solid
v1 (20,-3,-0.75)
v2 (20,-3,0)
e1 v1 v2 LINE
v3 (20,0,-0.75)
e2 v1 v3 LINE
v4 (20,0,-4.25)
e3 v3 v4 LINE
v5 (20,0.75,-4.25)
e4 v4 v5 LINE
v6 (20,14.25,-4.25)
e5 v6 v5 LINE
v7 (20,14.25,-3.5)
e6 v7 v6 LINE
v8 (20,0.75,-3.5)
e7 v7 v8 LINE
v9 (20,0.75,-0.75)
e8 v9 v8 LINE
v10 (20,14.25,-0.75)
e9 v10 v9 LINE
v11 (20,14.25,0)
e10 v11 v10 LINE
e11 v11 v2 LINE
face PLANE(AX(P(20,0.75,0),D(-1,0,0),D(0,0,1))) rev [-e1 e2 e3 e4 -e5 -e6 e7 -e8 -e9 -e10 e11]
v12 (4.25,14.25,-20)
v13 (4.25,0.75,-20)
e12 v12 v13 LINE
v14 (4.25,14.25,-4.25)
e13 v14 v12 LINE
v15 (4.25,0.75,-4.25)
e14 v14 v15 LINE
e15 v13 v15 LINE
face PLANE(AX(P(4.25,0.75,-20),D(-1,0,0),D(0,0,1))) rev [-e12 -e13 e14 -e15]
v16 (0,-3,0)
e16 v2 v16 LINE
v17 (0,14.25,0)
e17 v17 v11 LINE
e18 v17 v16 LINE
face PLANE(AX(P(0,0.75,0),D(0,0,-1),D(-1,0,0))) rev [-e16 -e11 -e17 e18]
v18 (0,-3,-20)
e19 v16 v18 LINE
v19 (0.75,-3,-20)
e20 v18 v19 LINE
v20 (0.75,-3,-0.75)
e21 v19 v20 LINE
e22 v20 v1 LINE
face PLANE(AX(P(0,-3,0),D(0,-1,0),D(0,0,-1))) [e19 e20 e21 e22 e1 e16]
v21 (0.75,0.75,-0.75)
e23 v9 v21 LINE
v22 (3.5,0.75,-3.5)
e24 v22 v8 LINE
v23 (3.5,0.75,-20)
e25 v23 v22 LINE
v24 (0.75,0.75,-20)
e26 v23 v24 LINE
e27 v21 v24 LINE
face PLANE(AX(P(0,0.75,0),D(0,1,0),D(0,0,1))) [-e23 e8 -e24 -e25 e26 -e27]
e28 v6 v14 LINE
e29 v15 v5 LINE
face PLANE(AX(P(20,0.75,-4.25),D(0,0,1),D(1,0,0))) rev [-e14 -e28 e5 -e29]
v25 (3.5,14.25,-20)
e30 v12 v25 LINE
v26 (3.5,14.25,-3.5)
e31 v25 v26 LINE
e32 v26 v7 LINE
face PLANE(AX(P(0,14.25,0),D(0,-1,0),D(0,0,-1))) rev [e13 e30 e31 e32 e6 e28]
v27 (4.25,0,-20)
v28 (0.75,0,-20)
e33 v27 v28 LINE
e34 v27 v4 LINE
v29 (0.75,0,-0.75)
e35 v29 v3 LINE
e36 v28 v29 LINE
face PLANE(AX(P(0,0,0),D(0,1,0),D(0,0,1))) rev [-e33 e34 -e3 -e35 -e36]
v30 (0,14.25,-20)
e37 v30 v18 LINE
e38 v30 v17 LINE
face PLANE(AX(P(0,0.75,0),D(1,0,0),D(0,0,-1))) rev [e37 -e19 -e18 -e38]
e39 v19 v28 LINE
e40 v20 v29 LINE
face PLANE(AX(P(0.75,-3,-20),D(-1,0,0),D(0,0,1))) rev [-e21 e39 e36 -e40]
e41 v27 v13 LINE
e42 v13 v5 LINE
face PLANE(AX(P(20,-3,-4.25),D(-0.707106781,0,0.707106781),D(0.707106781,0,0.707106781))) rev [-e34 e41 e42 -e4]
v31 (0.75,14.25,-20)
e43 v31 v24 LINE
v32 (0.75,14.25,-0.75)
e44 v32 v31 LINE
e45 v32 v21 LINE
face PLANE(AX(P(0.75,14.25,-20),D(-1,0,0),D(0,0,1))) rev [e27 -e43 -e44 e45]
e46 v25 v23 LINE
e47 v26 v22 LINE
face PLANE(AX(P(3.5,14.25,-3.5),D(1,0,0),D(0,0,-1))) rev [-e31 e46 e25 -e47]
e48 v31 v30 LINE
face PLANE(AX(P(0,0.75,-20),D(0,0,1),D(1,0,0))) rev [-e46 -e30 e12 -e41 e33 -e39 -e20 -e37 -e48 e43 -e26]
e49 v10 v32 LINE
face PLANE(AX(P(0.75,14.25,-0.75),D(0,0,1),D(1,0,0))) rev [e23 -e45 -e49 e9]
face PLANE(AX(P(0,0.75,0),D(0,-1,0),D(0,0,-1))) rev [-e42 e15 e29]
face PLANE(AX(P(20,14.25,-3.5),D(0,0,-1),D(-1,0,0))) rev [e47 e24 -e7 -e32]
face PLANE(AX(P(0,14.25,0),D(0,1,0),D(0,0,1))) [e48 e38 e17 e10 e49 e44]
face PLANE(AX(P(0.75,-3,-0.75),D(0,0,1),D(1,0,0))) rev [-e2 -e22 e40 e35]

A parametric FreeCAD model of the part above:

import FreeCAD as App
import Part
import Sketcher

V = App.Vector
Q = App.Units.Quantity

doc = App.newDocument("Part")
body = doc.addObject("PartDesign::Body", "Body")

# Sketch on XZ plane
sketch1 = doc.addObject("Sketcher::SketchObject", "Sketch")
body.addObject(sketch1)
sketch1.AttachmentSupport = (doc.XZ_Plane, [""])
sketch1.MapMode = "FlatFace"
sketch1.addGeometry(Part.LineSegment(V(0, -20, 0), V(0, 0, 0)), False)
sketch1.addGeometry(Part.LineSegment(V(0, 0, 0), V(20, 0, 0)), False)
sketch1.addGeometry(Part.LineSegment(V(20, 0, 0), V(20, -4.2, 0)), False)
sketch1.addGeometry(Part.LineSegment(V(20, -4.2, 0), V(4.2, -4.2, 0)), False)
sketch1.addGeometry(Part.LineSegment(V(4.2, -4.2, 0), V(4.2, -20, 0)), False)
sketch1.addGeometry(Part.LineSegment(V(4.2, -20, 0), V(0, -20, 0)), False)
sketch1.addConstraint(Sketcher.Constraint("Coincident", 0, 2, 1, 1))
sketch1.addConstraint(Sketcher.Constraint("Coincident", 1, 2, 2, 1))
sketch1.addConstraint(Sketcher.Constraint("Coincident", 2, 2, 3, 1))
sketch1.addConstraint(Sketcher.Constraint("Coincident", 3, 2, 4, 1))
sketch1.addConstraint(Sketcher.Constraint("Coincident", 4, 2, 5, 1))
sketch1.addConstraint(Sketcher.Constraint("Coincident", 5, 2, 0, 1))
sketch1.addConstraint(Sketcher.Constraint("Vertical", 0))
sketch1.addConstraint(Sketcher.Constraint("Horizontal", 1))
sketch1.addConstraint(Sketcher.Constraint("Vertical", 2))
sketch1.addConstraint(Sketcher.Constraint("Horizontal", 3))
sketch1.addConstraint(Sketcher.Constraint("Vertical", 4))
sketch1.addConstraint(Sketcher.Constraint("Horizontal", 5))
sketch1.addConstraint(Sketcher.Constraint("Coincident", 0, 2, -1, 1))
sketch1.addConstraint(Sketcher.Constraint("Equal", 1, 0))
sketch1.addConstraint(Sketcher.Constraint("Equal", 5, 2))
sketch1.addConstraint(Sketcher.Constraint("DistanceX", 1, 1, 1, 2, Q("20 mm")))
sketch1.addConstraint(Sketcher.Constraint("DistanceX", 3, 2, 3, 1, Q("15.75 mm")))
pad1 = doc.addObject("PartDesign::Pad", "Pad")
body.addObject(pad1)
pad1.Profile = sketch1
pad1.Length = 0.75
pad1.Reversed = True

# Sketch on XZ plane
sketch2 = doc.addObject("Sketcher::SketchObject", "Sketch001")
body.addObject(sketch2)
sketch2.AttachmentSupport = (doc.XZ_Plane, [""])
sketch2.MapMode = "FlatFace"
sketch2.AttachmentOffset = App.Placement(V(0, 0, -0.75), App.Rotation())
sketch2.addGeometry(Part.LineSegment(V(20, -3.5, 0), V(20, -4.2, 0)), False)
sketch2.addGeometry(Part.LineSegment(V(20, -4.2, 0), V(4.2, -4.2, 0)), False)
sketch2.addGeometry(Part.LineSegment(V(4.2, -4.2, 0), V(4.2, -20, 0)), False)
sketch2.addGeometry(Part.LineSegment(V(4.2, -20, 0), V(3.5, -20, 0)), False)
sketch2.addGeometry(Part.LineSegment(V(3.5, -20, 0), V(3.5, -3.5, 0)), False)
sketch2.addGeometry(Part.LineSegment(V(3.5, -3.5, 0), V(20, -3.5, 0)), False)
sketch2.addGeometry(Part.LineSegment(V(0.8, -20, 0), V(0, -20, 0)), False)
sketch2.addGeometry(Part.LineSegment(V(0, -20, 0), V(0, 0, 0)), False)
sketch2.addGeometry(Part.LineSegment(V(0, 0, 0), V(20, 0, 0)), False)
sketch2.addGeometry(Part.LineSegment(V(20, 0, 0), V(20, -0.8, 0)), False)
sketch2.addGeometry(Part.LineSegment(V(20, -0.8, 0), V(0.8, -0.8, 0)), False)
sketch2.addGeometry(Part.LineSegment(V(0.8, -0.8, 0), V(0.8, -20, 0)), False)
sketch2.addConstraint(Sketcher.Constraint("Coincident", 0, 2, 1, 1))
sketch2.addConstraint(Sketcher.Constraint("Coincident", 1, 2, 2, 1))
sketch2.addConstraint(Sketcher.Constraint("Coincident", 2, 2, 3, 1))
sketch2.addConstraint(Sketcher.Constraint("Coincident", 3, 2, 4, 1))
sketch2.addConstraint(Sketcher.Constraint("Coincident", 4, 2, 5, 1))
sketch2.addConstraint(Sketcher.Constraint("Coincident", 5, 2, 0, 1))
sketch2.addConstraint(Sketcher.Constraint("Coincident", 6, 2, 7, 1))
sketch2.addConstraint(Sketcher.Constraint("Coincident", 7, 2, 8, 1))
sketch2.addConstraint(Sketcher.Constraint("Coincident", 8, 2, 9, 1))
sketch2.addConstraint(Sketcher.Constraint("Coincident", 9, 2, 10, 1))
sketch2.addConstraint(Sketcher.Constraint("Coincident", 10, 2, 11, 1))
sketch2.addConstraint(Sketcher.Constraint("Coincident", 11, 2, 6, 1))
sketch2.addConstraint(Sketcher.Constraint("Vertical", 0))
sketch2.addConstraint(Sketcher.Constraint("Horizontal", 1))
sketch2.addConstraint(Sketcher.Constraint("Vertical", 2))
sketch2.addConstraint(Sketcher.Constraint("Horizontal", 3))
sketch2.addConstraint(Sketcher.Constraint("Vertical", 4))
sketch2.addConstraint(Sketcher.Constraint("Horizontal", 5))
sketch2.addConstraint(Sketcher.Constraint("Horizontal", 6))
sketch2.addConstraint(Sketcher.Constraint("Vertical", 7))
sketch2.addConstraint(Sketcher.Constraint("Horizontal", 8))
sketch2.addConstraint(Sketcher.Constraint("Vertical", 9))
sketch2.addConstraint(Sketcher.Constraint("Horizontal", 10))
sketch2.addConstraint(Sketcher.Constraint("Vertical", 11))
sketch2.addConstraint(Sketcher.Constraint("Coincident", 7, 2, -1, 1))
sketch2.addConstraint(Sketcher.Constraint("Horizontal", 3, 2, 6, 2))
sketch2.addConstraint(Sketcher.Constraint("Vertical", 5, 2, 8, 2))
sketch2.addConstraint(Sketcher.Constraint("Equal", 3, 6))
sketch2.addConstraint(Sketcher.Constraint("Equal", 6, 0))
sketch2.addConstraint(Sketcher.Constraint("Equal", 1, 2))
sketch2.addConstraint(Sketcher.Constraint("Equal", 8, 7))
sketch2.addConstraint(Sketcher.Constraint("Equal", 0, 9))
sketch2.addConstraint(Sketcher.Constraint("DistanceX", 8, 1, 8, 2, Q("20 mm")))
sketch2.addConstraint(Sketcher.Constraint("DistanceX", 5, 1, 5, 2, Q("16.5 mm")))
sketch2.addConstraint(Sketcher.Constraint("DistanceX", 1, 2, 1, 1, Q("15.75 mm")))
pad2 = doc.addObject("PartDesign::Pad", "Pad001")
body.addObject(pad2)
pad2.Profile = sketch2
pad2.Length = 13.5
pad2.Reversed = True

# Sketch on XZ plane
sketch3 = doc.addObject("Sketcher::SketchObject", "Sketch002")
body.addObject(sketch3)
sketch3.AttachmentSupport = (doc.XZ_Plane, [""])
sketch3.MapMode = "FlatFace"
sketch3.addGeometry(Part.LineSegment(V(0, 0, 0), V(0, -20, 0)), False)
sketch3.addGeometry(Part.LineSegment(V(0, -20, 0), V(20, -20, 0)), False)
sketch3.addGeometry(Part.LineSegment(V(20, -20, 0), V(20, 0, 0)), False)
sketch3.addGeometry(Part.LineSegment(V(20, 0, 0), V(0, 0, 0)), False)
sketch3.addConstraint(Sketcher.Constraint("Coincident", 0, 2, 1, 1))
sketch3.addConstraint(Sketcher.Constraint("Coincident", 1, 2, 2, 1))
sketch3.addConstraint(Sketcher.Constraint("Coincident", 2, 2, 3, 1))
sketch3.addConstraint(Sketcher.Constraint("Coincident", 3, 2, 0, 1))
sketch3.addConstraint(Sketcher.Constraint("Vertical", 0))
sketch3.addConstraint(Sketcher.Constraint("Horizontal", 1))
sketch3.addConstraint(Sketcher.Constraint("Vertical", 2))
sketch3.addConstraint(Sketcher.Constraint("Horizontal", 3))
sketch3.addConstraint(Sketcher.Constraint("Coincident", 3, 2, -1, 1))
sketch3.addConstraint(Sketcher.Constraint("Equal", 3, 0))
sketch3.addConstraint(Sketcher.Constraint("DistanceX", 1, 1, 1, 2, Q("20 mm")))
pad3 = doc.addObject("PartDesign::Pad", "Pad002")
body.addObject(pad3)
pad3.Profile = sketch3
pad3.Length = 0.75
pad3.Reversed = True

# Sketch on XZ plane
sketch4 = doc.addObject("Sketcher::SketchObject", "Sketch003")
body.addObject(sketch4)
sketch4.AttachmentSupport = (doc.XZ_Plane, [""])
sketch4.MapMode = "FlatFace"
sketch4.addGeometry(Part.LineSegment(V(0, 0, 0), V(0, -20, 0)), False)
sketch4.addGeometry(Part.LineSegment(V(0, -20, 0), V(0.8, -20, 0)), False)
sketch4.addGeometry(Part.LineSegment(V(0.8, -20, 0), V(0.8, -0.8, 0)), False)
sketch4.addGeometry(Part.LineSegment(V(0.8, -0.8, 0), V(20, -0.8, 0)), False)
sketch4.addGeometry(Part.LineSegment(V(20, -0.8, 0), V(20, 0, 0)), False)
sketch4.addGeometry(Part.LineSegment(V(20, 0, 0), V(0, 0, 0)), False)
sketch4.addConstraint(Sketcher.Constraint("Coincident", 0, 2, 1, 1))
sketch4.addConstraint(Sketcher.Constraint("Coincident", 1, 2, 2, 1))
sketch4.addConstraint(Sketcher.Constraint("Coincident", 2, 2, 3, 1))
sketch4.addConstraint(Sketcher.Constraint("Coincident", 3, 2, 4, 1))
sketch4.addConstraint(Sketcher.Constraint("Coincident", 4, 2, 5, 1))
sketch4.addConstraint(Sketcher.Constraint("Coincident", 5, 2, 0, 1))
sketch4.addConstraint(Sketcher.Constraint("Vertical", 0))
sketch4.addConstraint(Sketcher.Constraint("Horizontal", 1))
sketch4.addConstraint(Sketcher.Constraint("Vertical", 2))
sketch4.addConstraint(Sketcher.Constraint("Horizontal", 3))
sketch4.addConstraint(Sketcher.Constraint("Vertical", 4))
sketch4.addConstraint(Sketcher.Constraint("Horizontal", 5))
sketch4.addConstraint(Sketcher.Constraint("Coincident", 5, 2, -1, 1))
sketch4.addConstraint(Sketcher.Constraint("Equal", 5, 0))
sketch4.addConstraint(Sketcher.Constraint("Equal", 3, 2))
sketch4.addConstraint(Sketcher.Constraint("DistanceX", 5, 2, 5, 1, Q("20 mm")))
sketch4.addConstraint(Sketcher.Constraint("DistanceX", 1, 1, 1, 2, Q("0.75 mm")))
pad4 = doc.addObject("PartDesign::Pad", "Pad003")
body.addObject(pad4)
pad4.Profile = sketch4
pad4.Length = 3

# Sketch on XZ plane
sketch5 = doc.addObject("Sketcher::SketchObject", "Sketch004")
body.addObject(sketch5)
sketch5.AttachmentSupport = (doc.XZ_Plane, [""])
sketch5.MapMode = "FlatFace"
sketch5.AttachmentOffset = App.Placement(V(0, 0, -0.75), App.Rotation())
sketch5.addGeometry(Part.LineSegment(V(20, -4, 0), V(20, -20, 0)), False)
sketch5.addGeometry(Part.LineSegment(V(20, -20, 0), V(4, -20, 0)), False)
sketch5.addGeometry(Part.LineSegment(V(4, -20, 0), V(20, -4, 0)), False)
sketch5.addConstraint(Sketcher.Constraint("Coincident", 0, 2, 1, 1))
sketch5.addConstraint(Sketcher.Constraint("Coincident", 1, 2, 2, 1))
sketch5.addConstraint(Sketcher.Constraint("Coincident", 2, 2, 0, 1))
sketch5.addConstraint(Sketcher.Constraint("Vertical", 0))
sketch5.addConstraint(Sketcher.Constraint("Horizontal", 1))
sketch5.addConstraint(Sketcher.Constraint("Equal", 1, 0))
sketch5.addConstraint(Sketcher.Constraint("DistanceX", -1, 1, 0, 2, Q("20 mm")))
sketch5.addConstraint(Sketcher.Constraint("DistanceY", 0, 2, -1, 1, Q("20 mm")))
sketch5.addConstraint(Sketcher.Constraint("DistanceX", 1, 2, 1, 1, Q("15.75 mm")))
pocket1 = doc.addObject("PartDesign::Pocket", "Pocket")
body.addObject(pocket1)
pocket1.Profile = sketch5
pocket1.Type = "ThroughAll"
pocket1.Reversed = True

doc.recompute()
